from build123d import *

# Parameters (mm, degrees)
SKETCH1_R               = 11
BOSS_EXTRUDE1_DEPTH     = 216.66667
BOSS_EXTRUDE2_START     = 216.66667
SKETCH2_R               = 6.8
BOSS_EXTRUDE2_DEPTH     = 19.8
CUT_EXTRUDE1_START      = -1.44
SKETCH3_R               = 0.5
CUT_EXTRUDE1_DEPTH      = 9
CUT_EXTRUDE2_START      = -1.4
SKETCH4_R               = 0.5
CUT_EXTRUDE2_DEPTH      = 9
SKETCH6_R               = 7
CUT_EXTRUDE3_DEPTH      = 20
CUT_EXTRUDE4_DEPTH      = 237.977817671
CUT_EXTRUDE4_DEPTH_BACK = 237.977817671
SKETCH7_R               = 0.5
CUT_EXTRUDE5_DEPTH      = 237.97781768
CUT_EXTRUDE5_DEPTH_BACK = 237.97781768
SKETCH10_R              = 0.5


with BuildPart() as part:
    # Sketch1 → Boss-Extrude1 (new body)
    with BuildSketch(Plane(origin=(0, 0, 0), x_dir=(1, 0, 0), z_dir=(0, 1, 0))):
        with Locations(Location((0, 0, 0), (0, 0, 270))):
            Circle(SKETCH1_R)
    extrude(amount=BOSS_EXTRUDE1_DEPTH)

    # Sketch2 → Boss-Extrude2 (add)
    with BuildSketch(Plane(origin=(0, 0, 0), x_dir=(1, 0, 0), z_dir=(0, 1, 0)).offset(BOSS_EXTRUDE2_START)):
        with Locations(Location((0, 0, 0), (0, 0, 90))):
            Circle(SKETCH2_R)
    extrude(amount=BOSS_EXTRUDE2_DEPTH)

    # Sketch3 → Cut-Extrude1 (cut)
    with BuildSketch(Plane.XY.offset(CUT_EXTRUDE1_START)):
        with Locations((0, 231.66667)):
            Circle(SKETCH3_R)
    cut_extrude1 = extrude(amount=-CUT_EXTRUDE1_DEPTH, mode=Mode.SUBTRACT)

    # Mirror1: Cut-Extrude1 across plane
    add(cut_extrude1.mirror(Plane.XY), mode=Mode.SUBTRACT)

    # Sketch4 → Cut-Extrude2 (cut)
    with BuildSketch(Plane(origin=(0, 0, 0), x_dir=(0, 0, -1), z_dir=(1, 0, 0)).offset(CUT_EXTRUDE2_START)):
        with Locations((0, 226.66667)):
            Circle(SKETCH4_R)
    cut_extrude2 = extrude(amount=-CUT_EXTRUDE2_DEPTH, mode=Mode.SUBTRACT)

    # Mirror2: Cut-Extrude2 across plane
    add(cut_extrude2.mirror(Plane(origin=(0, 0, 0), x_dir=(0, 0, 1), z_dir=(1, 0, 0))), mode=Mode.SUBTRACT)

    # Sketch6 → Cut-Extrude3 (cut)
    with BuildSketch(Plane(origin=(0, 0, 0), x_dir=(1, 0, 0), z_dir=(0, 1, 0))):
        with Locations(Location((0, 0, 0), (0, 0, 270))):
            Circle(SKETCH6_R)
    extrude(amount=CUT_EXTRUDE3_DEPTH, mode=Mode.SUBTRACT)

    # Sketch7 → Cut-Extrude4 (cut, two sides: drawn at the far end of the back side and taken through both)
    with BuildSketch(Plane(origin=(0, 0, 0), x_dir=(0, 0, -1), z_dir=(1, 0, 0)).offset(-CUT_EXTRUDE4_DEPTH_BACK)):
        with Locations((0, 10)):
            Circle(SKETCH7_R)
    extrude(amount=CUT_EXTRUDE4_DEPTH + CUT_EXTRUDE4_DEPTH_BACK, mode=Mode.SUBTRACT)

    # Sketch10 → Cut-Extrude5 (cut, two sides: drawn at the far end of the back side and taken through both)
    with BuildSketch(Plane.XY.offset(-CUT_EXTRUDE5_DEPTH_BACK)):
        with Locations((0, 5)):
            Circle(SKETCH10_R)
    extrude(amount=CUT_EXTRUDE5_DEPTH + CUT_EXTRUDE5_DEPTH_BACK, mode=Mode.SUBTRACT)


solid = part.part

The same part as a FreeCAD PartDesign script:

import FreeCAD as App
import Part
import Sketcher
Q = App.Units.Quantity

doc = App.newDocument("Part")
body = doc.addObject("PartDesign::Body", "Body")

# Sketch on XZ plane
sketch1 = body.newObject("Sketcher::SketchObject", "Sketch")
sketch1.AttachmentSupport = (doc.getObject("XZ_Plane"), [""])
sketch1.MapMode = "FlatFace"
sketch1.addGeometry(Part.Circle(App.Vector(0, 0, 0), App.Vector(0, 0, 1), 11), False)
sketch1.addConstraint(Sketcher.Constraint("Coincident", 0, 3, -1, 1))
sketch1.addConstraint(Sketcher.Constraint("Diameter", 0, Q("22 mm")))
pad1 = body.newObject("PartDesign::Pad", "Pad")
pad1.Profile = sketch1
pad1.Length = 216.66667
pad1.Reversed = True

# Sketch on XZ plane
sketch2 = body.newObject("Sketcher::SketchObject", "Sketch001")
sketch2.AttachmentSupport = (doc.getObject("XZ_Plane"), [""])
sketch2.MapMode = "FlatFace"
sketch2.AttachmentOffset = App.Placement(App.Vector(0, 0, -216.66667), App.Rotation())
sketch2.addGeometry(Part.Circle(App.Vector(0, 0, 0), App.Vector(0, 0, 1), 7), False)
sketch2.addConstraint(Sketcher.Constraint("Coincident", 0, 3, -1, 1))
sketch2.addConstraint(Sketcher.Constraint("Diameter", 0, Q("13.6 mm")))
pad2 = body.newObject("PartDesign::Pad", "Pad001")
pad2.Profile = sketch2
pad2.Length = 19.8
pad2.Reversed = True

# Sketch on XY plane
sketch3 = body.newObject("Sketcher::SketchObject", "Sketch002")
sketch3.AttachmentSupport = (doc.getObject("XY_Plane"), [""])
sketch3.MapMode = "FlatFace"
sketch3.AttachmentOffset = App.Placement(App.Vector(0, 0, -1.44), App.Rotation())
sketch3.addGeometry(Part.Circle(App.Vector(0, 231.7, 0), App.Vector(0, 0, 1), 0.5), False)
sketch3.addConstraint(Sketcher.Constraint("PointOnObject", 0, 3, -2))
sketch3.addConstraint(Sketcher.Constraint("Diameter", 0, Q("1 mm")))
sketch3.addConstraint(Sketcher.Constraint("DistanceY", -1, 1, 0, 3, Q("231.66667 mm")))
pocket1 = body.newObject("PartDesign::Pocket", "Pocket")
pocket1.Profile = sketch3
pocket1.Length = 9
doc.recompute()

mirrored = body.newObject("PartDesign::Mirrored", "Mirrored")
mirrored.Originals = [pocket1]
mirrored.MirrorPlane = (doc.getObject("XY_Plane"), [""])
body.Tip = mirrored

# Sketch on YZ plane
sketch4 = body.newObject("Sketcher::SketchObject", "Sketch003")
sketch4.AttachmentSupport = (doc.getObject("YZ_Plane"), [""])
sketch4.MapMode = "FlatFace"
sketch4.AttachmentOffset = App.Placement(App.Vector(0, 0, -1.4), App.Rotation())
sketch4.addGeometry(Part.Circle(App.Vector(226.7, 0, 0), App.Vector(0, 0, 1), 0.5), False)
sketch4.addConstraint(Sketcher.Constraint("PointOnObject", 0, 3, -1))
sketch4.addConstraint(Sketcher.Constraint("Diameter", 0, Q("1 mm")))
sketch4.addConstraint(Sketcher.Constraint("DistanceX", -1, 1, 0, 3, Q("226.66667 mm")))
pocket2 = body.newObject("PartDesign::Pocket", "Pocket001")
pocket2.Profile = sketch4
pocket2.Length = 9
doc.recompute()

mirrored2 = body.newObject("PartDesign::Mirrored", "Mirrored001")
mirrored2.Originals = [pocket2]
mirrored2.MirrorPlane = (doc.getObject("YZ_Plane"), [""])
body.Tip = mirrored2

# Sketch on XZ plane
sketch5 = body.newObject("Sketcher::SketchObject", "Sketch004")
sketch5.AttachmentSupport = (doc.getObject("XZ_Plane"), [""])
sketch5.MapMode = "FlatFace"
sketch5.addGeometry(Part.Circle(App.Vector(0, 0, 0), App.Vector(0, 0, 1), 7), False)
sketch5.addConstraint(Sketcher.Constraint("Coincident", 0, 3, -1, 1))
sketch5.addConstraint(Sketcher.Constraint("Diameter", 0, Q("14 mm")))
pocket3 = body.newObject("PartDesign::Pocket", "Pocket002")
pocket3.Profile = sketch5
pocket3.Length = 20

# Sketch on YZ plane
sketch6 = body.newObject("Sketcher::SketchObject", "Sketch005")
sketch6.AttachmentSupport = (doc.getObject("YZ_Plane"), [""])
sketch6.MapMode = "FlatFace"
sketch6.addGeometry(Part.Circle(App.Vector(10, 0, 0), App.Vector(0, 0, 1), 0.5), False)
sketch6.addConstraint(Sketcher.Constraint("PointOnObject", 0, 3, -1))
sketch6.addConstraint(Sketcher.Constraint("Diameter", 0, Q("1 mm")))
sketch6.addConstraint(Sketcher.Constraint("DistanceX", -1, 1, 0, 3, Q("10 mm")))
pocket4 = body.newObject("PartDesign::Pocket", "Pocket003")
pocket4.Profile = sketch6
pocket4.Type = "ThroughAll"
pocket4.Midplane = True

# Sketch on XY plane
sketch7 = body.newObject("Sketcher::SketchObject", "Sketch006")
sketch7.AttachmentSupport = (doc.getObject("XY_Plane"), [""])
sketch7.MapMode = "FlatFace"
sketch7.addGeometry(Part.Circle(App.Vector(0, 5, 0), App.Vector(0, 0, 1), 0.5), False)
sketch7.addConstraint(Sketcher.Constraint("PointOnObject", 0, 3, -2))
sketch7.addConstraint(Sketcher.Constraint("Diameter", 0, Q("1 mm")))
sketch7.addConstraint(Sketcher.Constraint("DistanceY", -1, 1, 0, 3, Q("5 mm")))
pocket5 = body.newObject("PartDesign::Pocket", "Pocket004")
pocket5.Profile = sketch7
pocket5.Type = "ThroughAll"
pocket5.Midplane = True

doc.recompute()
